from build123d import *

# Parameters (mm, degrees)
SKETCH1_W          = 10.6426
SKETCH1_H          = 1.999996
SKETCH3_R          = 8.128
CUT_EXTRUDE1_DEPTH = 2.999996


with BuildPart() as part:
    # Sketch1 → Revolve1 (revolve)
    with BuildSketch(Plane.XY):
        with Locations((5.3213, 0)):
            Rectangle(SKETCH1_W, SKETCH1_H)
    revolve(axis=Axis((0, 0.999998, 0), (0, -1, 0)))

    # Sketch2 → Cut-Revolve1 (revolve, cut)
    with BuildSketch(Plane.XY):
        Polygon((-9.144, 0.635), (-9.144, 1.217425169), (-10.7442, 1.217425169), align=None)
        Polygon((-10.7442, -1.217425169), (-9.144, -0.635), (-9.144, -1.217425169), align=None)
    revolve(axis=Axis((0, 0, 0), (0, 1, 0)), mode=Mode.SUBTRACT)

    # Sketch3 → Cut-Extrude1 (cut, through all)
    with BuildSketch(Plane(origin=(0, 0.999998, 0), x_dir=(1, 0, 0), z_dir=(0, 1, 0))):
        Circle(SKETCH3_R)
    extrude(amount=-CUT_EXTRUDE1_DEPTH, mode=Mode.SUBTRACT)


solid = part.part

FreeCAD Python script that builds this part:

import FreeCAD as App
import Part
import Sketcher
Q = App.Units.Quantity


def add_polygon(sketch, points):
    """Adds a closed chain of lines whose ends are joined by coincident constraints."""
    first, n = sketch.GeometryCount, len(points)
    for a, b in zip(points, points[1:] + points[:1]):
        sketch.addGeometry(Part.LineSegment(App.Vector(*a, 0), App.Vector(*b, 0)), False)
    for i in range(n):
        sketch.addConstraint(Sketcher.Constraint("Coincident", first + i, 2, first + (i + 1) % n, 1))

doc = App.newDocument("Part")
body = doc.addObject("PartDesign::Body", "Body")

sketch1 = body.newObject("Sketcher::SketchObject", "Sketch")
sketch1.AttachmentSupport = (doc.getObject("XY_Plane"), [""])
sketch1.MapMode = "FlatFace"
add_polygon(sketch1, [(0, 1), (0, -1), (10.6, -1), (10.6, 1)])
sketch1.addConstraint(Sketcher.Constraint("Vertical", 0))
sketch1.addConstraint(Sketcher.Constraint("Horizontal", 1))
sketch1.addConstraint(Sketcher.Constraint("Vertical", 2))
sketch1.addConstraint(Sketcher.Constraint("Horizontal", 3))
sketch1.addConstraint(Sketcher.Constraint("Symmetric", 0, 2, 3, 2, -1, 1))
sketch1.addConstraint(Sketcher.Constraint("DistanceX", 1, 1, 1, 2, Q("0.419 in")))
sketch1.addConstraint(Sketcher.Constraint("DistanceY", 0, 2, -1, 1, 0.999998))
revolution = body.newObject("PartDesign::Revolution", "Revolution")
revolution.Profile = sketch1
revolution.ReferenceAxis = (sketch1, ["V_Axis"])
revolution.Angle = 360

sketch2 = body.newObject("Sketcher::SketchObject", "Sketch001")
sketch2.AttachmentSupport = (doc.getObject("XY_Plane"), [""])
sketch2.MapMode = "FlatFace"
add_polygon(sketch2, [(-9.1, 0.6), (-9.1, 1.2), (-10.7, 1.2)])
add_polygon(sketch2, [(-9.1, -0.6), (-10.7, -1.2), (-9.1, -1.2)])
sketch2.addConstraint(Sketcher.Constraint("Vertical", 0))
sketch2.addConstraint(Sketcher.Constraint("Horizontal", 1))
sketch2.addConstraint(Sketcher.Constraint("Horizontal", 4))
sketch2.addConstraint(Sketcher.Constraint("Vertical", 5))
sketch2.addConstraint(Sketcher.Constraint("Symmetric", 1, 2, 3, 2, -1))
sketch2.addConstraint(Sketcher.Constraint("Symmetric", 2, 2, 5, 2, -1))
sketch2.addConstraint(Sketcher.Constraint("Angle", 2, Q("-20 deg")))
sketch2.addConstraint(Sketcher.Constraint("DistanceX", 1, 2, 1, 1, Q("0.063 in")))
sketch2.addConstraint(Sketcher.Constraint("DistanceX", 0, 2, -1, 1, Q("0.36 in")))
sketch2.addConstraint(Sketcher.Constraint("DistanceY", 5, 2, 2, 2, Q("0.05 in")))
groove = body.newObject("PartDesign::Groove", "Groove")
groove.Profile = sketch2
groove.ReferenceAxis = (sketch2, ["V_Axis"])
groove.Angle = 360

sketch3 = body.newObject("Sketcher::SketchObject", "Sketch002")
sketch3.AttachmentSupport = (doc.getObject("XZ_Plane"), [""])
sketch3.MapMode = "FlatFace"
sketch3.AttachmentOffset = App.Placement(App.Vector(0, 0, -0.999998), App.Rotation())
sketch3.addGeometry(Part.Circle(App.Vector(0, 0, 0), App.Vector(0, 0, 1), 8), False)
sketch3.addConstraint(Sketcher.Constraint("Coincident", 0, 3, -1, 1))
sketch3.addConstraint(Sketcher.Constraint("Diameter", 0, Q("0.64 in")))
pocket1 = body.newObject("PartDesign::Pocket", "Pocket")
pocket1.Profile = sketch3
pocket1.Type = "ThroughAll"
pocket1.Reversed = True

doc.recompute()
